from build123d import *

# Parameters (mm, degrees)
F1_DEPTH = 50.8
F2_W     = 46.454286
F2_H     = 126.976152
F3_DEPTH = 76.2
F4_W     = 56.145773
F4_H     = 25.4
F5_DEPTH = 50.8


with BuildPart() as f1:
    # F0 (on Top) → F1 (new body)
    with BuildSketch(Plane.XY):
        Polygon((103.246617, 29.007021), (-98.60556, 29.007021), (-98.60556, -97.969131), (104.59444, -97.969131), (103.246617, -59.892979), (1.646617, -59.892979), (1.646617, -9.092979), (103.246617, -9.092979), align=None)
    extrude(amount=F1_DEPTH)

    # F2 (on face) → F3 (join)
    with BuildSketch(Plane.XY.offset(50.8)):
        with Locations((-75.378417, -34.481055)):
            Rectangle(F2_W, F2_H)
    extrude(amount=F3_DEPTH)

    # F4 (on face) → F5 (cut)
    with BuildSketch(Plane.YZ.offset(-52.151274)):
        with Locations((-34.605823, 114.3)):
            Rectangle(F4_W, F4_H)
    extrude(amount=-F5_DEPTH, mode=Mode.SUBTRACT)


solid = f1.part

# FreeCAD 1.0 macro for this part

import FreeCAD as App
import Part
import Sketcher

V = App.Vector
Q = App.Units.Quantity


def add_polygon(sketch, points):
    """Adds a closed chain of lines whose ends are joined by coincident constraints."""
    first, n = sketch.GeometryCount, len(points)
    for a, b in zip(points, points[1:] + points[:1]):
        sketch.addGeometry(Part.LineSegment(App.Vector(*a, 0), App.Vector(*b, 0)), False)
    for i in range(n):
        sketch.addConstraint(Sketcher.Constraint("Coincident", first + i, 2, first + (i + 1) % n, 1))

doc = App.newDocument("Part")
body = doc.addObject("PartDesign::Body", "Body")

# Sketch on XY plane
sketch1 = body.newObject("Sketcher::SketchObject", "Sketch")
sketch1.AttachmentSupport = (doc.getObject("XY_Plane"), [""])
sketch1.MapMode = "FlatFace"
add_polygon(sketch1, [(103, 29), (-99, 29), (-99, -98), (105, -98), (103, -60), (2, -60), (2, -9), (103, -9)])  # lines 0-7
sketch1.addConstraint([
    Sketcher.Constraint("Horizontal", 0),
    Sketcher.Constraint("Vertical", 1),
    Sketcher.Constraint("Horizontal", 2),
    Sketcher.Constraint("Horizontal", 4),
    Sketcher.Constraint("Vertical", 5),
    Sketcher.Constraint("Horizontal", 6),
    Sketcher.Constraint("Vertical", 7),
    Sketcher.Constraint("Vertical", 3, 2, 6, 2),
    Sketcher.Constraint("DistanceX", 2, 1, 2, 2, Q("8 in")),
    Sketcher.Constraint("DistanceX", 4, 2, 4, 1, Q("4 in")),
    Sketcher.Constraint("DistanceY", 5, 1, 5, 2, Q("2 in")),
    Sketcher.Constraint("DistanceY", 7, 1, 7, 2, Q("1.5 in")),
    Sketcher.Constraint("Distance", 3, Q("1.5 in")),
    Sketcher.Constraint("DistanceX", 0, 2, 0, 1, Q("201.852177 mm")),
    Sketcher.Constraint("DistanceX", 0, 2, -1, 1, Q("98.60556 mm")),
    Sketcher.Constraint("DistanceY", -1, 1, 0, 2, Q("29.007021 mm")),
])
pad1 = body.newObject("PartDesign::Pad", "Pad")
pad1.Profile = sketch1
pad1.Length = Q("2 in")

# Sketch on XY plane
sketch2 = body.newObject("Sketcher::SketchObject", "Sketch001")
sketch2.AttachmentSupport = (doc.getObject("XY_Plane"), [""])
sketch2.MapMode = "FlatFace"
sketch2.AttachmentOffset = App.Placement(V(0, 0, 2 * 25.4), App.Rotation())
add_polygon(sketch2, [(-99, 29), (-99, -98), (-52, -98), (-52, 29)])  # lines 0-3
sketch2.addConstraint([
    Sketcher.Constraint("Vertical", 0),
    Sketcher.Constraint("Horizontal", 1),
    Sketcher.Constraint("Vertical", 2),
    Sketcher.Constraint("Horizontal", 3),
    Sketcher.Constraint("DistanceX", 1, 1, 1, 2, Q("46.454286 mm")),
    Sketcher.Constraint("DistanceY", 0, 2, 0, 1, Q("126.976152 mm")),
    Sketcher.Constraint("DistanceX", 0, 2, -1, 1, Q("98.60556 mm")),
    Sketcher.Constraint("DistanceY", 0, 2, -1, 1, Q("97.969131 mm")),
])
pad2 = body.newObject("PartDesign::Pad", "Pad001")
pad2.Profile = sketch2
pad2.Length = Q("3 in")

# Sketch on YZ plane
sketch3 = body.newObject("Sketcher::SketchObject", "Sketch002")
sketch3.AttachmentSupport = (doc.getObject("YZ_Plane"), [""])
sketch3.MapMode = "FlatFace"
sketch3.AttachmentOffset = App.Placement(V(0, 0, -52.151274), App.Rotation())
add_polygon(sketch3, [(-63, 127), (-63, 102), (-7, 102), (-7, 127)])  # lines 0-3
sketch3.addConstraint([
    Sketcher.Constraint("Vertical", 0),
    Sketcher.Constraint("Horizontal", 1),
    Sketcher.Constraint("Vertical", 2),
    Sketcher.Constraint("Horizontal", 3),
    Sketcher.Constraint("DistanceY", 0, 2, 0, 1, Q("1 in")),
    Sketcher.Constraint("DistanceY", -1, 1, 0, 2, Q("4 in")),
    Sketcher.Constraint("DistanceX", 1, 1, 1, 2, Q("56.145773 mm")),
    Sketcher.Constraint("DistanceX", 0, 2, -1, 1, Q("62.678709 mm")),
])
pocket1 = body.newObject("PartDesign::Pocket", "Pocket")
pocket1.Profile = sketch3
pocket1.Length = Q("2 in")

doc.recompute()
